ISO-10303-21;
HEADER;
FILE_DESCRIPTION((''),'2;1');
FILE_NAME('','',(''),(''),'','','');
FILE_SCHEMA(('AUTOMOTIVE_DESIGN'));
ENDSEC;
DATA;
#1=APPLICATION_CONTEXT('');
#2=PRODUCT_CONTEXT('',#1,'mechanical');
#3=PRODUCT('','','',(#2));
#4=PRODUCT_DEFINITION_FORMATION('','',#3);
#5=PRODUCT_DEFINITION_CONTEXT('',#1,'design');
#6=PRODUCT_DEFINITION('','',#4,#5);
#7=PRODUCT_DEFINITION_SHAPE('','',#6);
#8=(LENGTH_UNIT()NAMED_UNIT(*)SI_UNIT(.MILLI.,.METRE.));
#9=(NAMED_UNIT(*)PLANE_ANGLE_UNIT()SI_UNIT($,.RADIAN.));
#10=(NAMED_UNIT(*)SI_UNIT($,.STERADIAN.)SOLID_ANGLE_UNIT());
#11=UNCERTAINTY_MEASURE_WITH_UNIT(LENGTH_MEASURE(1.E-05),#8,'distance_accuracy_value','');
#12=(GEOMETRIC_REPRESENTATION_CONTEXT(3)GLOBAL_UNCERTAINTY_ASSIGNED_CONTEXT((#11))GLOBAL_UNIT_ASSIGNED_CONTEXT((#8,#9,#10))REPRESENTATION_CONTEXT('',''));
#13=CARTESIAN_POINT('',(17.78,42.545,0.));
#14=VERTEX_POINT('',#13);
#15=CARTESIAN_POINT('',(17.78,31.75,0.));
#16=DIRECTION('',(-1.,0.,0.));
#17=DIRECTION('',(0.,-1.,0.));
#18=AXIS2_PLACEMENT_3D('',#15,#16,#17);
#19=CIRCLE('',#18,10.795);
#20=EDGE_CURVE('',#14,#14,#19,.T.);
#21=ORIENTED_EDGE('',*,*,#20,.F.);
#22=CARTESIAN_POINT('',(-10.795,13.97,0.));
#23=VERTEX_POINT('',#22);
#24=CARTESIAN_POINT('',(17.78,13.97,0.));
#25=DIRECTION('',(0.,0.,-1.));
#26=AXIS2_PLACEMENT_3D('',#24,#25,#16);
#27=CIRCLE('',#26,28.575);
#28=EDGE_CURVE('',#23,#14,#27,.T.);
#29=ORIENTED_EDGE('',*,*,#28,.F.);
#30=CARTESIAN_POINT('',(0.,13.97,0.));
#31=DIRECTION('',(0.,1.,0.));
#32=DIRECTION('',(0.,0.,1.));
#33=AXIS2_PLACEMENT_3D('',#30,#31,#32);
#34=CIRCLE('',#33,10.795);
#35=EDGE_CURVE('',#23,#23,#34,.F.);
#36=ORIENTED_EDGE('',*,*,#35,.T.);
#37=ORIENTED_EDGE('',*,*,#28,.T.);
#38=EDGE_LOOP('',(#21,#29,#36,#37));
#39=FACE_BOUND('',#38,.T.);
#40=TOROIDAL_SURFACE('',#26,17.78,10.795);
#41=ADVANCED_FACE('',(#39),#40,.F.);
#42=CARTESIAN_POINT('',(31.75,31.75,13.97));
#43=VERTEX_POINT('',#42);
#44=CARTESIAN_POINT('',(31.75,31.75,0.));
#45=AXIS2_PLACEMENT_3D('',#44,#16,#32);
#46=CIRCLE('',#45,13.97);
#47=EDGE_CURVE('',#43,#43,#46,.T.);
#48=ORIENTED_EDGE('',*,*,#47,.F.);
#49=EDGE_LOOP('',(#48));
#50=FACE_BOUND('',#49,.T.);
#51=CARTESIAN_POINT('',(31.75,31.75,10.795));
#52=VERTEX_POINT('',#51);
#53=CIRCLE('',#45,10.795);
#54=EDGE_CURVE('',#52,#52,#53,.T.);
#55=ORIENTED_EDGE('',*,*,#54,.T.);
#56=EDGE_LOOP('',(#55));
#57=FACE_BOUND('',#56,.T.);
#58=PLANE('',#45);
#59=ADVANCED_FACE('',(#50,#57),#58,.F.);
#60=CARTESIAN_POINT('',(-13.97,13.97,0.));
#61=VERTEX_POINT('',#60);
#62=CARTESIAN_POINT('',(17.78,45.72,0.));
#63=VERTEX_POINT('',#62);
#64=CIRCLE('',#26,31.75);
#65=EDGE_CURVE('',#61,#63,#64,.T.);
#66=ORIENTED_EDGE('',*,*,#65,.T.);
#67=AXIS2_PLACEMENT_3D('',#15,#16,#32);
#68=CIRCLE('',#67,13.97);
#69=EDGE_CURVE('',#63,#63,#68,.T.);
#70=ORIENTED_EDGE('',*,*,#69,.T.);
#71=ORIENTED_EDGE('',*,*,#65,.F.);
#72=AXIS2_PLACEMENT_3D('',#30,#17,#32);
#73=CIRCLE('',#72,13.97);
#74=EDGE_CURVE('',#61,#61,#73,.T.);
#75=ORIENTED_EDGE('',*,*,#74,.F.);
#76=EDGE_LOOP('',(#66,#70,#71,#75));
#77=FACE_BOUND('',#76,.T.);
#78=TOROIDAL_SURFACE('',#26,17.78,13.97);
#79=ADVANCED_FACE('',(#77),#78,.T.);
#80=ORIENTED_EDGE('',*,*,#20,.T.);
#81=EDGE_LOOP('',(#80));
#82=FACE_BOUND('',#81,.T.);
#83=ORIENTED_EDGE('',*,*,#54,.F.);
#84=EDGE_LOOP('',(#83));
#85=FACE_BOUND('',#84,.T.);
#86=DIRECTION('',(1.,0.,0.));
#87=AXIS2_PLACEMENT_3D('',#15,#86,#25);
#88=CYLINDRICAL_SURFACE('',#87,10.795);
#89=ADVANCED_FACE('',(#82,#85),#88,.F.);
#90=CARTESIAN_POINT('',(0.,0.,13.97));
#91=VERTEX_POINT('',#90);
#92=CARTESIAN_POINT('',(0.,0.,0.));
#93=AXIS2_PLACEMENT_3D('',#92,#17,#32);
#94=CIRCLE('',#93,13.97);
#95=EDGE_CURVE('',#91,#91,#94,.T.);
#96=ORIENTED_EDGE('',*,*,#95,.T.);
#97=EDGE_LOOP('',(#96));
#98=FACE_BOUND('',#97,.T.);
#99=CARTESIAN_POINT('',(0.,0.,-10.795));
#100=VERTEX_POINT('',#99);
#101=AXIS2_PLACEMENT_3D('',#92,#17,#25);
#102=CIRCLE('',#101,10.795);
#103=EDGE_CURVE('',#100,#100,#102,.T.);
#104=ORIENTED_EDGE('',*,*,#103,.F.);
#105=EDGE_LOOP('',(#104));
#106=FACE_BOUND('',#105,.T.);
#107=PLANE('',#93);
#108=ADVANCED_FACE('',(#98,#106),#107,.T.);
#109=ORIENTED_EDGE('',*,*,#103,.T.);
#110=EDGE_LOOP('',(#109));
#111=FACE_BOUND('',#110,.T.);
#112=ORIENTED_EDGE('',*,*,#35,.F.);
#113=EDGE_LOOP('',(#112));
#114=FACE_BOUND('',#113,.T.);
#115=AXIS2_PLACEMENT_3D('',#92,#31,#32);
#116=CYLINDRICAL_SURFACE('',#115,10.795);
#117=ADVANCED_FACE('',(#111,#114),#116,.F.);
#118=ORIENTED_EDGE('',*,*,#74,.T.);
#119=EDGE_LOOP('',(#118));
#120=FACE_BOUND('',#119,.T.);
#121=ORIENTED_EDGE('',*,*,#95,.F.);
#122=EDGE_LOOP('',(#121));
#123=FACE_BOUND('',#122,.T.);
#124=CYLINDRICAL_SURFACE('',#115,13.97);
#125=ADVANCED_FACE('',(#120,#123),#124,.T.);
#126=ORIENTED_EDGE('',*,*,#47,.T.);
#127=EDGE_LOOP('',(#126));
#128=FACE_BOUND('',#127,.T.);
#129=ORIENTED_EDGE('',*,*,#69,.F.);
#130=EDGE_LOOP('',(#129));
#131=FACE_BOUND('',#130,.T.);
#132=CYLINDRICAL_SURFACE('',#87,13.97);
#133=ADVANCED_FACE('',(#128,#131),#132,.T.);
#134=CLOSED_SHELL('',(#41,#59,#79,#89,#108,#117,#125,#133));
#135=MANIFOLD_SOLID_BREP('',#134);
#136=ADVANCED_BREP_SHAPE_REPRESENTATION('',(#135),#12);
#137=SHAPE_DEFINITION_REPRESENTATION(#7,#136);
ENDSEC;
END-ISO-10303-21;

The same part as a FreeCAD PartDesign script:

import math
import FreeCAD as App
import Part
import Sketcher
from FreeCAD import Vector
Q = App.Units.Quantity


def faces_at(feature, points):
    """Names of the faces that lie closest to the given points."""
    faces = feature.Shape.Faces
    near = lambda p: min(range(len(faces)), key=lambda i: faces[i].distToShape(Part.Vertex(*p))[0])
    return sorted({f"Face{near(p) + 1}" for p in points})

doc = App.newDocument("Part")
body = doc.addObject("PartDesign::Body", "Body")

# Sketch on XZ plane
sketch1 = doc.addObject("Sketcher::SketchObject", "Sketch")
body.addObject(sketch1)
sketch1.AttachmentSupport = (doc.XZ_Plane, [""])
sketch1.MapMode = "FlatFace"
sketch1.addGeometry(Part.Circle(Vector(0, 0, 0), Vector(0, 0, 1), 14), False)
sketch1.addConstraint([
    Sketcher.Constraint("Coincident", 0, 3, -1, 1),
    Sketcher.Constraint("Diameter", 0, Q("1.1 in")),
])

# Sketch on XY plane
sketch2 = doc.addObject("Sketcher::SketchObject", "Sketch001")
body.addObject(sketch2)
sketch2.AttachmentSupport = (doc.XY_Plane, [""])
sketch2.MapMode = "FlatFace"
sketch2.addGeometry([
    Part.LineSegment(Vector(0, 0, 0), Vector(0, 14, 0)),
    Part.ArcOfCircle(Part.Circle(Vector(18, 14, 0), Vector(0, 0, 1), 18), math.radians(90), math.radians(180)),
    Part.LineSegment(Vector(18, 32, 0), Vector(32, 32, 0)),
], False)
sketch2.addConstraint([
    Sketcher.Constraint("Tangent", 0, 2, 1, 2),
    Sketcher.Constraint("Tangent", 1, 1, 2, 1),
    Sketcher.Constraint("Vertical", 0),
    Sketcher.Constraint("Horizontal", 2),
    Sketcher.Constraint("Coincident", 0, 1, -1, 1),
    Sketcher.Constraint("Equal", 2, 0),
    Sketcher.Constraint("Radius", 1, Q("0.7 in")),
    Sketcher.Constraint("DistanceX", 2, 1, 2, 2, Q("0.55 in")),
])
doc.recompute()

additivepipe = doc.addObject("PartDesign::AdditivePipe", "AdditivePipe")
body.addObject(additivepipe)
additivepipe.Profile = sketch1
additivepipe.Spine = (sketch2, ["Edge1", "Edge2", "Edge3"])
doc.recompute()

thickness = doc.addObject("PartDesign::Thickness", "Thickness")
body.addObject(thickness)
thickness.Base = (additivepipe, faces_at(additivepipe, [(31.75, 31.75, 0)]))
thickness.Value = Q("0.125 in")
thickness.Reversed = True
thickness.Join = "Intersection"

# Sketch on XZ plane
sketch3 = doc.addObject("Sketcher::SketchObject", "Sketch002")
body.addObject(sketch3)
sketch3.AttachmentSupport = (doc.XZ_Plane, [""])
sketch3.MapMode = "FlatFace"
sketch3.AttachmentOffset = App.Placement(Vector(0, 0, -0.52 * 25.4), App.Rotation())
sketch3.addGeometry(Part.Circle(Vector(0, 0, 0), Vector(0, 0, 1), 11), False)
sketch3.addConstraint([
    Sketcher.Constraint("Coincident", 0, 3, -1, 1),
    Sketcher.Constraint("Diameter", 0, Q("0.85 in")),
])
pocket1 = doc.addObject("PartDesign::Pocket", "Pocket")
body.addObject(pocket1)
pocket1.Profile = sketch3
pocket1.Length = Q("0.52 in")
pocket1.Reversed = True

doc.recompute()
